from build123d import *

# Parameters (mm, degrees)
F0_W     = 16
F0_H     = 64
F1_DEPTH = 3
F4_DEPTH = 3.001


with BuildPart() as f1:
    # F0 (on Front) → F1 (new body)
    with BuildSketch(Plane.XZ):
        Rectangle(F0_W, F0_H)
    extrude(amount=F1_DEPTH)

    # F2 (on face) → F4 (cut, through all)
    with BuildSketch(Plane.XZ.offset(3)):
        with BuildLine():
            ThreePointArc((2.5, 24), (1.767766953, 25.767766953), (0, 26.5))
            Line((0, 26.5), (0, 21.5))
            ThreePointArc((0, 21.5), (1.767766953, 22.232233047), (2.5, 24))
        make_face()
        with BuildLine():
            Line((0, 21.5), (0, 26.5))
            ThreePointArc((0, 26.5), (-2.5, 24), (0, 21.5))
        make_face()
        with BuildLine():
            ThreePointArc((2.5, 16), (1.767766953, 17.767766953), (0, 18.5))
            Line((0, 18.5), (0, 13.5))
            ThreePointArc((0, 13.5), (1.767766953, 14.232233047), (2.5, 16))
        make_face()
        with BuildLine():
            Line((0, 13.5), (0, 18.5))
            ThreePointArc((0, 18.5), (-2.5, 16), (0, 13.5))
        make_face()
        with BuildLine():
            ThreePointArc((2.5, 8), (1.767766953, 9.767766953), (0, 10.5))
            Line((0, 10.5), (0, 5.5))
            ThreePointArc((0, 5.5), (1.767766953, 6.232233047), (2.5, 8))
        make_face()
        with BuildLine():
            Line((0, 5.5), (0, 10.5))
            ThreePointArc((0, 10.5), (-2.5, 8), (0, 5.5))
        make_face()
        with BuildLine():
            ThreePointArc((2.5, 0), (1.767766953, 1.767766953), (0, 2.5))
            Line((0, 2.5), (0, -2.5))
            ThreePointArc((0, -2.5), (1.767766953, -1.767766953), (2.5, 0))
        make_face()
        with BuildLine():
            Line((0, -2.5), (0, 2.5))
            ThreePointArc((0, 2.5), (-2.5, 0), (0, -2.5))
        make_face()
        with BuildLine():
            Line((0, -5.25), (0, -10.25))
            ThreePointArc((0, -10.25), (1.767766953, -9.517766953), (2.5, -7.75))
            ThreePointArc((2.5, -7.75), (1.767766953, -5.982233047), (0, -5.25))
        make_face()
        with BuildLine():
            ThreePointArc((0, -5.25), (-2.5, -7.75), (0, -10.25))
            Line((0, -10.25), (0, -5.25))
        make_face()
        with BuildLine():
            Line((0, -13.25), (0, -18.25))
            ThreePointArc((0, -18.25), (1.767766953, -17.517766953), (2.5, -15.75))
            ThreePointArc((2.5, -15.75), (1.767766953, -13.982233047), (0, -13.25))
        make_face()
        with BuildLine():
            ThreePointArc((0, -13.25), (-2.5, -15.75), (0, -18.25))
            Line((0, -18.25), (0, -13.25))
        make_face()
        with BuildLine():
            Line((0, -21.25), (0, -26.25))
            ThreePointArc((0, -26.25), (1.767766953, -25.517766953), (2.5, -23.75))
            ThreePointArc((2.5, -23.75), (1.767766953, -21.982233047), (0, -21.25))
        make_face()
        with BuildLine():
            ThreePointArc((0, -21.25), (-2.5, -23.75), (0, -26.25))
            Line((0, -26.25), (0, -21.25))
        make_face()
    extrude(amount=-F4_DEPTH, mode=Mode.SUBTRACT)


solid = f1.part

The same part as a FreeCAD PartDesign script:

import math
import FreeCAD as App
import Part
import Sketcher

V = App.Vector

doc = App.newDocument("Part")
body = doc.addObject("PartDesign::Body", "Body")

# Sketch on XZ plane
sketch1 = body.newObject("Sketcher::SketchObject", "Sketch")
sketch1.AttachmentSupport = (doc.getObject("XZ_Plane"), [""])
sketch1.MapMode = "FlatFace"
sketch1.addGeometry([
    Part.LineSegment(V(-8, 32, 0), V(-8, -32, 0)),
    Part.LineSegment(V(-8, -32, 0), V(8, -32, 0)),
    Part.LineSegment(V(8, -32, 0), V(8, 32, 0)),
    Part.LineSegment(V(8, 32, 0), V(-8, 32, 0)),
], False)
sketch1.addConstraint([
    Sketcher.Constraint("Coincident", 0, 2, 1, 1),
    Sketcher.Constraint("Coincident", 1, 2, 2, 1),
    Sketcher.Constraint("Coincident", 2, 2, 3, 1),
    Sketcher.Constraint("Coincident", 3, 2, 0, 1),
    Sketcher.Constraint("Vertical", 0),
    Sketcher.Constraint("Horizontal", 1),
    Sketcher.Constraint("Vertical", 2),
    Sketcher.Constraint("Horizontal", 3),
    Sketcher.Constraint("Symmetric", 0, 2, 2, 2, -1, 1),
    Sketcher.Constraint("DistanceX", 1, 1, 1, 2, 16.0),
    Sketcher.Constraint("DistanceY", 0, 2, 0, 1, 64.0),
])
pad1 = body.newObject("PartDesign::Pad", "Pad")
pad1.Profile = sketch1
pad1.Length = 3

# Sketch on XZ plane
sketch2 = body.newObject("Sketcher::SketchObject", "Sketch001")
sketch2.AttachmentSupport = (doc.getObject("XZ_Plane"), [""])
sketch2.MapMode = "FlatFace"
sketch2.AttachmentOffset = App.Placement(V(0, 0, 3), App.Rotation())
sketch2.addGeometry([
    Part.ArcOfCircle(Part.Circle(V(0, 24, 0), V(0, 0, 1), 2.5), math.radians(0), math.radians(90)),  # 0
    Part.ArcOfCircle(Part.Circle(V(0, 24, 0), V(0, 0, 1), 2.5), math.radians(90), math.radians(270)),  # 1
    Part.ArcOfCircle(Part.Circle(V(0, 24, 0), V(0, 0, 1), 2.5), math.radians(-90), math.radians(0)),  # 2
    Part.ArcOfCircle(Part.Circle(V(0, 16, 0), V(0, 0, 1), 2.5), math.radians(0), math.radians(90)),  # 3
    Part.ArcOfCircle(Part.Circle(V(0, 16, 0), V(0, 0, 1), 2.5), math.radians(90), math.radians(270)),  # 4
    Part.ArcOfCircle(Part.Circle(V(0, 16, 0), V(0, 0, 1), 2.5), math.radians(-90), math.radians(0)),  # 5
    Part.ArcOfCircle(Part.Circle(V(0, 8, 0), V(0, 0, 1), 2.5), math.radians(0), math.radians(90)),  # 6
    Part.ArcOfCircle(Part.Circle(V(0, 8, 0), V(0, 0, 1), 2.5), math.radians(90), math.radians(270)),  # 7
    Part.ArcOfCircle(Part.Circle(V(0, 8, 0), V(0, 0, 1), 2.5), math.radians(-90), math.radians(0)),  # 8
    Part.ArcOfCircle(Part.Circle(V(0, 0, 0), V(0, 0, 1), 2.5), math.radians(0), math.radians(90)),  # 9
    Part.ArcOfCircle(Part.Circle(V(0, 0, 0), V(0, 0, 1), 2.5), math.radians(90), math.radians(270)),  # 10
    Part.ArcOfCircle(Part.Circle(V(0, 0, 0), V(0, 0, 1), 2.5), math.radians(-90), math.radians(0)),  # 11
    Part.ArcOfCircle(Part.Circle(V(0, -7.75, 0), V(0, 0, 1), 2.5), math.radians(-90), math.radians(0)),  # 12
    Part.ArcOfCircle(Part.Circle(V(0, -7.75, 0), V(0, 0, 1), 2.5), math.radians(0), math.radians(90)),  # 13
    Part.ArcOfCircle(Part.Circle(V(0, -7.75, 0), V(0, 0, 1), 2.5), math.radians(90), math.radians(270)),  # 14
    Part.ArcOfCircle(Part.Circle(V(0, -15.75, 0), V(0, 0, 1), 2.5), math.radians(-90), math.radians(0)),  # 15
    Part.ArcOfCircle(Part.Circle(V(0, -15.75, 0), V(0, 0, 1), 2.5), math.radians(0), math.radians(90)),  # 16
    Part.ArcOfCircle(Part.Circle(V(0, -15.75, 0), V(0, 0, 1), 2.5), math.radians(90), math.radians(270)),  # 17
    Part.ArcOfCircle(Part.Circle(V(0, -23.75, 0), V(0, 0, 1), 2.5), math.radians(-90), math.radians(0)),  # 18
    Part.ArcOfCircle(Part.Circle(V(0, -23.75, 0), V(0, 0, 1), 2.5), math.radians(0), math.radians(90)),  # 19
    Part.ArcOfCircle(Part.Circle(V(0, -23.75, 0), V(0, 0, 1), 2.5), math.radians(90), math.radians(270)),  # 20
], False)
sketch2.addConstraint([
    Sketcher.Constraint("Tangent", 0, 2, 1, 1),
    Sketcher.Constraint("Tangent", 1, 2, 2, 1),
    Sketcher.Constraint("Tangent", 2, 2, 0, 1),
    Sketcher.Constraint("Tangent", 3, 2, 4, 1),
    Sketcher.Constraint("Tangent", 4, 2, 5, 1),
    Sketcher.Constraint("Tangent", 5, 2, 3, 1),
    Sketcher.Constraint("Tangent", 6, 2, 7, 1),
    Sketcher.Constraint("Tangent", 7, 2, 8, 1),
    Sketcher.Constraint("Tangent", 8, 2, 6, 1),
    Sketcher.Constraint("Tangent", 9, 2, 10, 1),
    Sketcher.Constraint("Tangent", 10, 2, 11, 1),
    Sketcher.Constraint("Tangent", 11, 2, 9, 1),
    Sketcher.Constraint("Tangent", 12, 2, 13, 1),
    Sketcher.Constraint("Tangent", 13, 2, 14, 1),
    Sketcher.Constraint("Tangent", 14, 2, 12, 1),
    Sketcher.Constraint("Tangent", 15, 2, 16, 1),
    Sketcher.Constraint("Tangent", 16, 2, 17, 1),
    Sketcher.Constraint("Tangent", 17, 2, 15, 1),
    Sketcher.Constraint("Tangent", 18, 2, 19, 1),
    Sketcher.Constraint("Tangent", 19, 2, 20, 1),
    Sketcher.Constraint("Tangent", 20, 2, 18, 1),
    Sketcher.Constraint("Coincident", 9, 3, -1, 1),
    Sketcher.Constraint("Equal", 2, 3),
    Sketcher.Constraint("Equal", 5, 6),
    Sketcher.Constraint("Equal", 8, 9),
    Sketcher.Constraint("Equal", 11, 12),
    Sketcher.Constraint("Equal", 14, 15),
    Sketcher.Constraint("Equal", 17, 18),
    Sketcher.Constraint("PointOnObject", 0, 3, -2),
    Sketcher.Constraint("PointOnObject", 3, 3, -2),
    Sketcher.Constraint("PointOnObject", 6, 3, -2),
    Sketcher.Constraint("PointOnObject", 12, 3, -2),
    Sketcher.Constraint("PointOnObject", 15, 3, -2),
    Sketcher.Constraint("PointOnObject", 18, 3, -2),
    Sketcher.Constraint("PointOnObject", 0, 2, -2),
    Sketcher.Constraint("PointOnObject", 1, 2, -2),
    Sketcher.Constraint("PointOnObject", 3, 2, -2),
    Sketcher.Constraint("PointOnObject", 4, 2, -2),
    Sketcher.Constraint("PointOnObject", 6, 2, -2),
    Sketcher.Constraint("PointOnObject", 7, 2, -2),
    Sketcher.Constraint("PointOnObject", 9, 2, -2),
    Sketcher.Constraint("PointOnObject", 10, 2, -2),
    Sketcher.Constraint("PointOnObject", 11, 2, -1),
    Sketcher.Constraint("PointOnObject", 13, 2, -2),
    Sketcher.Constraint("PointOnObject", 14, 2, -2),
    Sketcher.Constraint("PointOnObject", 16, 2, -2),
    Sketcher.Constraint("PointOnObject", 17, 2, -2),
    Sketcher.Constraint("PointOnObject", 19, 2, -2),
    Sketcher.Constraint("PointOnObject", 20, 2, -2),
    Sketcher.Constraint("Horizontal", 1, 3, 2, 2),
    Sketcher.Constraint("Horizontal", 4, 3, 5, 2),
    Sketcher.Constraint("Horizontal", 7, 3, 8, 2),
    Sketcher.Constraint("Horizontal", 14, 3, 12, 2),
    Sketcher.Constraint("Horizontal", 17, 3, 15, 2),
    Sketcher.Constraint("Horizontal", 20, 3, 18, 2),
    Sketcher.Constraint("Radius", 0, 2.5),
    Sketcher.Constraint("DistanceY", -1, 1, 0, 3, 24.0),
    Sketcher.Constraint("DistanceY", -1, 1, 3, 3, 16.0),
    Sketcher.Constraint("DistanceY", -1, 1, 6, 3, 8.0),
    Sketcher.Constraint("DistanceY", 15, 3, 12, 3, 8.0),
    Sketcher.Constraint("DistanceY", 18, 3, 15, 3, 8.0),
    Sketcher.Constraint("DistanceY", 12, 3, -1, 1, 7.75),
])
pocket1 = body.newObject("PartDesign::Pocket", "Pocket")
pocket1.Profile = sketch2
pocket1.Type = "ThroughAll"

doc.recompute()
